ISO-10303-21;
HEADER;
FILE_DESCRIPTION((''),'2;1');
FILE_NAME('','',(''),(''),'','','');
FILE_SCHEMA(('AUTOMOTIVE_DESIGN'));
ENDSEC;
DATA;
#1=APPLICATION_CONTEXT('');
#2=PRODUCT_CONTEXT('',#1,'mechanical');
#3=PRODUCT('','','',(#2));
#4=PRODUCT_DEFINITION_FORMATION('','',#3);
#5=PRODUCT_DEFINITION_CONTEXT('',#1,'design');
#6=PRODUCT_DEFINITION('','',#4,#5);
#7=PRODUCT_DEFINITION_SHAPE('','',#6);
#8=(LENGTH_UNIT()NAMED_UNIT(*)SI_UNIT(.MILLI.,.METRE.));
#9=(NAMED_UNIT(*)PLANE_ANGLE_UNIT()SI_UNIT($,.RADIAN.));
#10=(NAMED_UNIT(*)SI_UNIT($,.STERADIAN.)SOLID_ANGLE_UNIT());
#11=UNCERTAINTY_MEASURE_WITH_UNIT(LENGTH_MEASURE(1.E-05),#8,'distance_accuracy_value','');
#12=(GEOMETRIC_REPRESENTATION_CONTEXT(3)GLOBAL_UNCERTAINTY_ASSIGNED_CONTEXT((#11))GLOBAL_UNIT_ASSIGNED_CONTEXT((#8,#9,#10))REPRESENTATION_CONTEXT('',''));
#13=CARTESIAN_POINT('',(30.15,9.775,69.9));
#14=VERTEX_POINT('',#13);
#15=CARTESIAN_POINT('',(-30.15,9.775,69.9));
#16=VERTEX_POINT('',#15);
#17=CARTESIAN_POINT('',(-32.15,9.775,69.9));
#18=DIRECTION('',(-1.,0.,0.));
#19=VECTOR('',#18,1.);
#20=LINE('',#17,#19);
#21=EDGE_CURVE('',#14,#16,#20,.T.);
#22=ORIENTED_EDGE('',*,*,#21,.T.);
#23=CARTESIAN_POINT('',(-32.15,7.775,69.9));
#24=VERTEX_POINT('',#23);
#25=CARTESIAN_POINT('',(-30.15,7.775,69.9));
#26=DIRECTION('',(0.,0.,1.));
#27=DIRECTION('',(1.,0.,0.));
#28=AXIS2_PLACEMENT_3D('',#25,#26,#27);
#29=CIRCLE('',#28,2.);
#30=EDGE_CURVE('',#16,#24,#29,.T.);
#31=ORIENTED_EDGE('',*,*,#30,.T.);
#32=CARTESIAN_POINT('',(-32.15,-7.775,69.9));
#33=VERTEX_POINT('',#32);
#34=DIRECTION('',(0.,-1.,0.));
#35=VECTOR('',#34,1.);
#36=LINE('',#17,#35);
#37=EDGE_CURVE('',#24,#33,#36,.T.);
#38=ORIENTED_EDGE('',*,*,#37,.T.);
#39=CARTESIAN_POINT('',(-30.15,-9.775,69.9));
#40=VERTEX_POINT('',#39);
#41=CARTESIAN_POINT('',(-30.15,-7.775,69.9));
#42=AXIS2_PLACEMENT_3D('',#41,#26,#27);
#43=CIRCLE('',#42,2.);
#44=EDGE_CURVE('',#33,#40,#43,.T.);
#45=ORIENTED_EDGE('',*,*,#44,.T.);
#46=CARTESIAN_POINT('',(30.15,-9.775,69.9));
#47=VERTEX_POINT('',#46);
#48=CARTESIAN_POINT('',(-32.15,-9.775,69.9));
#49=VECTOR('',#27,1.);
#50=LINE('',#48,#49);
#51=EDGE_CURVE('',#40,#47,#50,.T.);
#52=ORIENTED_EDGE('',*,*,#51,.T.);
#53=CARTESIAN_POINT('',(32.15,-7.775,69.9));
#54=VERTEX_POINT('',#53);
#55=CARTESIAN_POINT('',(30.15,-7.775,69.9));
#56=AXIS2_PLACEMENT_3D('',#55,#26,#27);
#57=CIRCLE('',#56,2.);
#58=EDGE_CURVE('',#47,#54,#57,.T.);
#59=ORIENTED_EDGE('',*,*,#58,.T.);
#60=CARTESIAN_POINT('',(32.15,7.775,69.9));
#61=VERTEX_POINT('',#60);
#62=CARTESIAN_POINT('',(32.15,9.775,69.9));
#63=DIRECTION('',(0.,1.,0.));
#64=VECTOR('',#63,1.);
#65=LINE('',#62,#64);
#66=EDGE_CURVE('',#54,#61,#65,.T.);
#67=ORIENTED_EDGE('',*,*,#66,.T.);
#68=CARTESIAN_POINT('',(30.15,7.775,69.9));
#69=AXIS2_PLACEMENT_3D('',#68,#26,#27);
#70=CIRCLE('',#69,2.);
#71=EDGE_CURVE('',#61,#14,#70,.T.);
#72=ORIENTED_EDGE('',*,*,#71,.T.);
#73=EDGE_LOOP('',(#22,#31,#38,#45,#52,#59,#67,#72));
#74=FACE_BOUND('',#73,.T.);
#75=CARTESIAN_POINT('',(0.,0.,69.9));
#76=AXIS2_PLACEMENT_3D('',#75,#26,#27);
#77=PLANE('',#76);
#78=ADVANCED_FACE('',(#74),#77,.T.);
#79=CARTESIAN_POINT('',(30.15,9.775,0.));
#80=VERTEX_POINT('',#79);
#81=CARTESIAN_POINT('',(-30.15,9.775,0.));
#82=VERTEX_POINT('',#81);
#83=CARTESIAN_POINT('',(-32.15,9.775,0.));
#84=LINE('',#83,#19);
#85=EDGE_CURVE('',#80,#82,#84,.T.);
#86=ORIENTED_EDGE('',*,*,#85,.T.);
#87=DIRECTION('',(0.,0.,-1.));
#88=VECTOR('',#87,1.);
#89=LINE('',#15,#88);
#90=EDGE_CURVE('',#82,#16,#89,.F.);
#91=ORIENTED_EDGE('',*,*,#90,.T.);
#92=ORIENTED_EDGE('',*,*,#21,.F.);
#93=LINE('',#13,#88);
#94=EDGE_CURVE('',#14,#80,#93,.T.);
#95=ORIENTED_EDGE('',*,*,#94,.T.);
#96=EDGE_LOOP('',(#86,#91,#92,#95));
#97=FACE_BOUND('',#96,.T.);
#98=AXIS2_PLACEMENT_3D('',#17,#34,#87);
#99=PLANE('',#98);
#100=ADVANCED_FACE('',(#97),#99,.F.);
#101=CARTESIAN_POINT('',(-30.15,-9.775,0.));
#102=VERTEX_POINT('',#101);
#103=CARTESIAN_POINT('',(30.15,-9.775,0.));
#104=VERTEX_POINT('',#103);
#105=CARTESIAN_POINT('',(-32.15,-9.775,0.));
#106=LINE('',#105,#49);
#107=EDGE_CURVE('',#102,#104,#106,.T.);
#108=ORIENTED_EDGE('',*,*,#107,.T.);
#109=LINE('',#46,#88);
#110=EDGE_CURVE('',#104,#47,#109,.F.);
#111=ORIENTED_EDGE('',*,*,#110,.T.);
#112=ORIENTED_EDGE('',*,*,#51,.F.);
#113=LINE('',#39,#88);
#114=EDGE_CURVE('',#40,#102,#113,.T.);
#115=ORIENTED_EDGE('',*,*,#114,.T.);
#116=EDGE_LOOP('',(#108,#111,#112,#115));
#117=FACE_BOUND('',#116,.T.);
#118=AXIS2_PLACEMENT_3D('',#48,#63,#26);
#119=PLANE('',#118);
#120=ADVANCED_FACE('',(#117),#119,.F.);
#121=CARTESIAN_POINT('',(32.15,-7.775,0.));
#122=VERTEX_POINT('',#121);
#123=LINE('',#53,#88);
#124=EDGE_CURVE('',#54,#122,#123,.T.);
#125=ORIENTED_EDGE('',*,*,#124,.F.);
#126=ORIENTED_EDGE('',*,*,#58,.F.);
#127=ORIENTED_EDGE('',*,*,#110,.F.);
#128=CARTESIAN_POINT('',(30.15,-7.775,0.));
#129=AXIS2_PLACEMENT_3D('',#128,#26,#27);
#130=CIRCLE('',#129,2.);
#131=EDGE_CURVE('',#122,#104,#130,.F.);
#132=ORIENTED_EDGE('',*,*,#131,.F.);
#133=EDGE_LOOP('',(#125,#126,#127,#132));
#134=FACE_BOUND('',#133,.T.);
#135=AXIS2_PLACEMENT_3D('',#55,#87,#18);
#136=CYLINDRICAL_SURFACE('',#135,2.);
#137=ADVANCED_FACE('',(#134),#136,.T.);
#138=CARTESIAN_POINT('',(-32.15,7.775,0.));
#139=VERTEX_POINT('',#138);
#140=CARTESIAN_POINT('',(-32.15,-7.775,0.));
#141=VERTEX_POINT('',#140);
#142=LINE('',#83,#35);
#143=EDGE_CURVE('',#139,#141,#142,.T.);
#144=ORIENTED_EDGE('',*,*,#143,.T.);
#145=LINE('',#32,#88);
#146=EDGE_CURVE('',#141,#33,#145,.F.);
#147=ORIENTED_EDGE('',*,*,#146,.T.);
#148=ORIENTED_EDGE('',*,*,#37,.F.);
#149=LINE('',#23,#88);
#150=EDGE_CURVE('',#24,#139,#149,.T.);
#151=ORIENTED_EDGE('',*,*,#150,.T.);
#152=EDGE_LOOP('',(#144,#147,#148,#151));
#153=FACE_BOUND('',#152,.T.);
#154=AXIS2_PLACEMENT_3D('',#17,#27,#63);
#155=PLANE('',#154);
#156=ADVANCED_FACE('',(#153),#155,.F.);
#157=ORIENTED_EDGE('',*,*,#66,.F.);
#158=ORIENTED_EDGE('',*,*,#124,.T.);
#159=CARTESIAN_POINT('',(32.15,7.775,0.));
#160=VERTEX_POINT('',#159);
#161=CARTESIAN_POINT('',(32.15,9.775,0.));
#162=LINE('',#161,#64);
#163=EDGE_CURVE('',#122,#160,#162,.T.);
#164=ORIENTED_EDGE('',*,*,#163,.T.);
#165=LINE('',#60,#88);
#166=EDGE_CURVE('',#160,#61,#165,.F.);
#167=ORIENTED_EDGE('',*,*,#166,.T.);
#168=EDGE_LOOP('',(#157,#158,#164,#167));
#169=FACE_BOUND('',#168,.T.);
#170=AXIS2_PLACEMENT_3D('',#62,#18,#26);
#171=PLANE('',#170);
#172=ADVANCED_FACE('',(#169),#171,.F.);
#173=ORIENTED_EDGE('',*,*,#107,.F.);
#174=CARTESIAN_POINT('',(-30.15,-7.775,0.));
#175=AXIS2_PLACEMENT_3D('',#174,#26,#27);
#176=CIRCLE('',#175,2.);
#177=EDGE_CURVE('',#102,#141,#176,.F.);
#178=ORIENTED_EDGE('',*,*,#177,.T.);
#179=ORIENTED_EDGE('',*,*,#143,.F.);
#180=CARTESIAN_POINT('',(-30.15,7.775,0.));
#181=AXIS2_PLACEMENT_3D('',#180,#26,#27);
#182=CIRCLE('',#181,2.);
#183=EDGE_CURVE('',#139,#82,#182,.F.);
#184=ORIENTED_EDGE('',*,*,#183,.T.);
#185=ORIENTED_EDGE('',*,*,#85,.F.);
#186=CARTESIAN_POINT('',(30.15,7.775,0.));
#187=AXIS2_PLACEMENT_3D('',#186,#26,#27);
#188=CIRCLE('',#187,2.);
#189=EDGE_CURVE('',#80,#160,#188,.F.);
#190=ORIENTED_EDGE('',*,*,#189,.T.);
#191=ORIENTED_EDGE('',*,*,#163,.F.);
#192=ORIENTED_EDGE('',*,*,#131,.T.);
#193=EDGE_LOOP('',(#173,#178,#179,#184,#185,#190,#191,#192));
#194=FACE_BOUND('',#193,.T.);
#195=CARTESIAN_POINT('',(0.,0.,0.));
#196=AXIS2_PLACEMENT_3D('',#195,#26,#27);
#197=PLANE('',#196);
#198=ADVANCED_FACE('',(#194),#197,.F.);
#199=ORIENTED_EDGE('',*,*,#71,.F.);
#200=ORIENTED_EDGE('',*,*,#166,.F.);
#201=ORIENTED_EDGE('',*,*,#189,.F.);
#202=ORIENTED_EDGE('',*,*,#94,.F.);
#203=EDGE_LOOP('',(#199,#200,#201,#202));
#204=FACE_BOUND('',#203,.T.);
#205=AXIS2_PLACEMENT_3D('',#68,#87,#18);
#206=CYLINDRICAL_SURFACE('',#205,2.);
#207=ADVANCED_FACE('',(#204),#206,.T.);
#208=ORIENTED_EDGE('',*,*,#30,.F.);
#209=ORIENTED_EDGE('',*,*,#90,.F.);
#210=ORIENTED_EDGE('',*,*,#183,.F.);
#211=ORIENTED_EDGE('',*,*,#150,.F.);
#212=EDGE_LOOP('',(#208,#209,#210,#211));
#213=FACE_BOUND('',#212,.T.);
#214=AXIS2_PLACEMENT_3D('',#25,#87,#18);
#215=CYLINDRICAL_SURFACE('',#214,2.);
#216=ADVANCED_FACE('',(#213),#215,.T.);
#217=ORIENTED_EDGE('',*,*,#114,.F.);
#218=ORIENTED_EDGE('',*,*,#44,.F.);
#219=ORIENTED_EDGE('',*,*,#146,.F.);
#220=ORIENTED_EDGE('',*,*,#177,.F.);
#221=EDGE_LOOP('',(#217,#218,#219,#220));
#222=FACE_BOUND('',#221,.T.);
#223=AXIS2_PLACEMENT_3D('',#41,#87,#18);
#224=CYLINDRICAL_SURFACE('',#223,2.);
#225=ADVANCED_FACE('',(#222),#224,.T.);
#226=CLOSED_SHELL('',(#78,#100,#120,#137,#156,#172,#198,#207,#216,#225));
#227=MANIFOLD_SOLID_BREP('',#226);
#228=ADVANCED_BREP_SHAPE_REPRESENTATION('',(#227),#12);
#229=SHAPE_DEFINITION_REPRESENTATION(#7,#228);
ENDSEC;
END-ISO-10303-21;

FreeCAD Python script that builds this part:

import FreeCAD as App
import Part
import Sketcher

V = App.Vector


def edges_at(feature, points):
    """Names of the edges that pass closest to the given points."""
    edges = feature.Shape.Edges
    near = lambda p: min(range(len(edges)), key=lambda i: edges[i].distToShape(Part.Vertex(*p))[0])
    return sorted({f"Edge{near(p) + 1}" for p in points})


def add_polygon(sketch, points):
    """Adds a closed chain of lines whose ends are joined by coincident constraints."""
    first, n = sketch.GeometryCount, len(points)
    for a, b in zip(points, points[1:] + points[:1]):
        sketch.addGeometry(Part.LineSegment(App.Vector(*a, 0), App.Vector(*b, 0)), False)
    for i in range(n):
        sketch.addConstraint(Sketcher.Constraint("Coincident", first + i, 2, first + (i + 1) % n, 1))

doc = App.newDocument("Part")
body = doc.addObject("PartDesign::Body", "Body")

sketch1 = body.newObject("Sketcher::SketchObject", "Sketch")
sketch1.AttachmentSupport = (doc.getObject("XY_Plane"), [""])
sketch1.MapMode = "FlatFace"
add_polygon(sketch1, [(-32, 10), (-32, -10), (32, -10), (32, 10)])
sketch1.addConstraint(Sketcher.Constraint("Vertical", 0))
sketch1.addConstraint(Sketcher.Constraint("Horizontal", 1))
sketch1.addConstraint(Sketcher.Constraint("Vertical", 2))
sketch1.addConstraint(Sketcher.Constraint("Horizontal", 3))
sketch1.addConstraint(Sketcher.Constraint("Symmetric", 0, 2, 2, 2, -1, 1))
sketch1.addConstraint(Sketcher.Constraint("DistanceX", 1, 1, 1, 2, 64.3))
sketch1.addConstraint(Sketcher.Constraint("DistanceY", 0, 2, 0, 1, 19.55))
pad1 = body.newObject("PartDesign::Pad", "Pad")
pad1.Profile = sketch1
pad1.Length = 69.9
doc.recompute()

fillet = body.newObject("PartDesign::Fillet", "Fillet")
fillet.Base = (pad1, edges_at(pad1, [
    (32.15, -9.775, 34.95),
    (-32.15, -9.775, 34.95),
    (-32.15, 9.775, 34.95),
    (32.15, 9.775, 34.95),
]))
fillet.Radius = 2

doc.recompute()
